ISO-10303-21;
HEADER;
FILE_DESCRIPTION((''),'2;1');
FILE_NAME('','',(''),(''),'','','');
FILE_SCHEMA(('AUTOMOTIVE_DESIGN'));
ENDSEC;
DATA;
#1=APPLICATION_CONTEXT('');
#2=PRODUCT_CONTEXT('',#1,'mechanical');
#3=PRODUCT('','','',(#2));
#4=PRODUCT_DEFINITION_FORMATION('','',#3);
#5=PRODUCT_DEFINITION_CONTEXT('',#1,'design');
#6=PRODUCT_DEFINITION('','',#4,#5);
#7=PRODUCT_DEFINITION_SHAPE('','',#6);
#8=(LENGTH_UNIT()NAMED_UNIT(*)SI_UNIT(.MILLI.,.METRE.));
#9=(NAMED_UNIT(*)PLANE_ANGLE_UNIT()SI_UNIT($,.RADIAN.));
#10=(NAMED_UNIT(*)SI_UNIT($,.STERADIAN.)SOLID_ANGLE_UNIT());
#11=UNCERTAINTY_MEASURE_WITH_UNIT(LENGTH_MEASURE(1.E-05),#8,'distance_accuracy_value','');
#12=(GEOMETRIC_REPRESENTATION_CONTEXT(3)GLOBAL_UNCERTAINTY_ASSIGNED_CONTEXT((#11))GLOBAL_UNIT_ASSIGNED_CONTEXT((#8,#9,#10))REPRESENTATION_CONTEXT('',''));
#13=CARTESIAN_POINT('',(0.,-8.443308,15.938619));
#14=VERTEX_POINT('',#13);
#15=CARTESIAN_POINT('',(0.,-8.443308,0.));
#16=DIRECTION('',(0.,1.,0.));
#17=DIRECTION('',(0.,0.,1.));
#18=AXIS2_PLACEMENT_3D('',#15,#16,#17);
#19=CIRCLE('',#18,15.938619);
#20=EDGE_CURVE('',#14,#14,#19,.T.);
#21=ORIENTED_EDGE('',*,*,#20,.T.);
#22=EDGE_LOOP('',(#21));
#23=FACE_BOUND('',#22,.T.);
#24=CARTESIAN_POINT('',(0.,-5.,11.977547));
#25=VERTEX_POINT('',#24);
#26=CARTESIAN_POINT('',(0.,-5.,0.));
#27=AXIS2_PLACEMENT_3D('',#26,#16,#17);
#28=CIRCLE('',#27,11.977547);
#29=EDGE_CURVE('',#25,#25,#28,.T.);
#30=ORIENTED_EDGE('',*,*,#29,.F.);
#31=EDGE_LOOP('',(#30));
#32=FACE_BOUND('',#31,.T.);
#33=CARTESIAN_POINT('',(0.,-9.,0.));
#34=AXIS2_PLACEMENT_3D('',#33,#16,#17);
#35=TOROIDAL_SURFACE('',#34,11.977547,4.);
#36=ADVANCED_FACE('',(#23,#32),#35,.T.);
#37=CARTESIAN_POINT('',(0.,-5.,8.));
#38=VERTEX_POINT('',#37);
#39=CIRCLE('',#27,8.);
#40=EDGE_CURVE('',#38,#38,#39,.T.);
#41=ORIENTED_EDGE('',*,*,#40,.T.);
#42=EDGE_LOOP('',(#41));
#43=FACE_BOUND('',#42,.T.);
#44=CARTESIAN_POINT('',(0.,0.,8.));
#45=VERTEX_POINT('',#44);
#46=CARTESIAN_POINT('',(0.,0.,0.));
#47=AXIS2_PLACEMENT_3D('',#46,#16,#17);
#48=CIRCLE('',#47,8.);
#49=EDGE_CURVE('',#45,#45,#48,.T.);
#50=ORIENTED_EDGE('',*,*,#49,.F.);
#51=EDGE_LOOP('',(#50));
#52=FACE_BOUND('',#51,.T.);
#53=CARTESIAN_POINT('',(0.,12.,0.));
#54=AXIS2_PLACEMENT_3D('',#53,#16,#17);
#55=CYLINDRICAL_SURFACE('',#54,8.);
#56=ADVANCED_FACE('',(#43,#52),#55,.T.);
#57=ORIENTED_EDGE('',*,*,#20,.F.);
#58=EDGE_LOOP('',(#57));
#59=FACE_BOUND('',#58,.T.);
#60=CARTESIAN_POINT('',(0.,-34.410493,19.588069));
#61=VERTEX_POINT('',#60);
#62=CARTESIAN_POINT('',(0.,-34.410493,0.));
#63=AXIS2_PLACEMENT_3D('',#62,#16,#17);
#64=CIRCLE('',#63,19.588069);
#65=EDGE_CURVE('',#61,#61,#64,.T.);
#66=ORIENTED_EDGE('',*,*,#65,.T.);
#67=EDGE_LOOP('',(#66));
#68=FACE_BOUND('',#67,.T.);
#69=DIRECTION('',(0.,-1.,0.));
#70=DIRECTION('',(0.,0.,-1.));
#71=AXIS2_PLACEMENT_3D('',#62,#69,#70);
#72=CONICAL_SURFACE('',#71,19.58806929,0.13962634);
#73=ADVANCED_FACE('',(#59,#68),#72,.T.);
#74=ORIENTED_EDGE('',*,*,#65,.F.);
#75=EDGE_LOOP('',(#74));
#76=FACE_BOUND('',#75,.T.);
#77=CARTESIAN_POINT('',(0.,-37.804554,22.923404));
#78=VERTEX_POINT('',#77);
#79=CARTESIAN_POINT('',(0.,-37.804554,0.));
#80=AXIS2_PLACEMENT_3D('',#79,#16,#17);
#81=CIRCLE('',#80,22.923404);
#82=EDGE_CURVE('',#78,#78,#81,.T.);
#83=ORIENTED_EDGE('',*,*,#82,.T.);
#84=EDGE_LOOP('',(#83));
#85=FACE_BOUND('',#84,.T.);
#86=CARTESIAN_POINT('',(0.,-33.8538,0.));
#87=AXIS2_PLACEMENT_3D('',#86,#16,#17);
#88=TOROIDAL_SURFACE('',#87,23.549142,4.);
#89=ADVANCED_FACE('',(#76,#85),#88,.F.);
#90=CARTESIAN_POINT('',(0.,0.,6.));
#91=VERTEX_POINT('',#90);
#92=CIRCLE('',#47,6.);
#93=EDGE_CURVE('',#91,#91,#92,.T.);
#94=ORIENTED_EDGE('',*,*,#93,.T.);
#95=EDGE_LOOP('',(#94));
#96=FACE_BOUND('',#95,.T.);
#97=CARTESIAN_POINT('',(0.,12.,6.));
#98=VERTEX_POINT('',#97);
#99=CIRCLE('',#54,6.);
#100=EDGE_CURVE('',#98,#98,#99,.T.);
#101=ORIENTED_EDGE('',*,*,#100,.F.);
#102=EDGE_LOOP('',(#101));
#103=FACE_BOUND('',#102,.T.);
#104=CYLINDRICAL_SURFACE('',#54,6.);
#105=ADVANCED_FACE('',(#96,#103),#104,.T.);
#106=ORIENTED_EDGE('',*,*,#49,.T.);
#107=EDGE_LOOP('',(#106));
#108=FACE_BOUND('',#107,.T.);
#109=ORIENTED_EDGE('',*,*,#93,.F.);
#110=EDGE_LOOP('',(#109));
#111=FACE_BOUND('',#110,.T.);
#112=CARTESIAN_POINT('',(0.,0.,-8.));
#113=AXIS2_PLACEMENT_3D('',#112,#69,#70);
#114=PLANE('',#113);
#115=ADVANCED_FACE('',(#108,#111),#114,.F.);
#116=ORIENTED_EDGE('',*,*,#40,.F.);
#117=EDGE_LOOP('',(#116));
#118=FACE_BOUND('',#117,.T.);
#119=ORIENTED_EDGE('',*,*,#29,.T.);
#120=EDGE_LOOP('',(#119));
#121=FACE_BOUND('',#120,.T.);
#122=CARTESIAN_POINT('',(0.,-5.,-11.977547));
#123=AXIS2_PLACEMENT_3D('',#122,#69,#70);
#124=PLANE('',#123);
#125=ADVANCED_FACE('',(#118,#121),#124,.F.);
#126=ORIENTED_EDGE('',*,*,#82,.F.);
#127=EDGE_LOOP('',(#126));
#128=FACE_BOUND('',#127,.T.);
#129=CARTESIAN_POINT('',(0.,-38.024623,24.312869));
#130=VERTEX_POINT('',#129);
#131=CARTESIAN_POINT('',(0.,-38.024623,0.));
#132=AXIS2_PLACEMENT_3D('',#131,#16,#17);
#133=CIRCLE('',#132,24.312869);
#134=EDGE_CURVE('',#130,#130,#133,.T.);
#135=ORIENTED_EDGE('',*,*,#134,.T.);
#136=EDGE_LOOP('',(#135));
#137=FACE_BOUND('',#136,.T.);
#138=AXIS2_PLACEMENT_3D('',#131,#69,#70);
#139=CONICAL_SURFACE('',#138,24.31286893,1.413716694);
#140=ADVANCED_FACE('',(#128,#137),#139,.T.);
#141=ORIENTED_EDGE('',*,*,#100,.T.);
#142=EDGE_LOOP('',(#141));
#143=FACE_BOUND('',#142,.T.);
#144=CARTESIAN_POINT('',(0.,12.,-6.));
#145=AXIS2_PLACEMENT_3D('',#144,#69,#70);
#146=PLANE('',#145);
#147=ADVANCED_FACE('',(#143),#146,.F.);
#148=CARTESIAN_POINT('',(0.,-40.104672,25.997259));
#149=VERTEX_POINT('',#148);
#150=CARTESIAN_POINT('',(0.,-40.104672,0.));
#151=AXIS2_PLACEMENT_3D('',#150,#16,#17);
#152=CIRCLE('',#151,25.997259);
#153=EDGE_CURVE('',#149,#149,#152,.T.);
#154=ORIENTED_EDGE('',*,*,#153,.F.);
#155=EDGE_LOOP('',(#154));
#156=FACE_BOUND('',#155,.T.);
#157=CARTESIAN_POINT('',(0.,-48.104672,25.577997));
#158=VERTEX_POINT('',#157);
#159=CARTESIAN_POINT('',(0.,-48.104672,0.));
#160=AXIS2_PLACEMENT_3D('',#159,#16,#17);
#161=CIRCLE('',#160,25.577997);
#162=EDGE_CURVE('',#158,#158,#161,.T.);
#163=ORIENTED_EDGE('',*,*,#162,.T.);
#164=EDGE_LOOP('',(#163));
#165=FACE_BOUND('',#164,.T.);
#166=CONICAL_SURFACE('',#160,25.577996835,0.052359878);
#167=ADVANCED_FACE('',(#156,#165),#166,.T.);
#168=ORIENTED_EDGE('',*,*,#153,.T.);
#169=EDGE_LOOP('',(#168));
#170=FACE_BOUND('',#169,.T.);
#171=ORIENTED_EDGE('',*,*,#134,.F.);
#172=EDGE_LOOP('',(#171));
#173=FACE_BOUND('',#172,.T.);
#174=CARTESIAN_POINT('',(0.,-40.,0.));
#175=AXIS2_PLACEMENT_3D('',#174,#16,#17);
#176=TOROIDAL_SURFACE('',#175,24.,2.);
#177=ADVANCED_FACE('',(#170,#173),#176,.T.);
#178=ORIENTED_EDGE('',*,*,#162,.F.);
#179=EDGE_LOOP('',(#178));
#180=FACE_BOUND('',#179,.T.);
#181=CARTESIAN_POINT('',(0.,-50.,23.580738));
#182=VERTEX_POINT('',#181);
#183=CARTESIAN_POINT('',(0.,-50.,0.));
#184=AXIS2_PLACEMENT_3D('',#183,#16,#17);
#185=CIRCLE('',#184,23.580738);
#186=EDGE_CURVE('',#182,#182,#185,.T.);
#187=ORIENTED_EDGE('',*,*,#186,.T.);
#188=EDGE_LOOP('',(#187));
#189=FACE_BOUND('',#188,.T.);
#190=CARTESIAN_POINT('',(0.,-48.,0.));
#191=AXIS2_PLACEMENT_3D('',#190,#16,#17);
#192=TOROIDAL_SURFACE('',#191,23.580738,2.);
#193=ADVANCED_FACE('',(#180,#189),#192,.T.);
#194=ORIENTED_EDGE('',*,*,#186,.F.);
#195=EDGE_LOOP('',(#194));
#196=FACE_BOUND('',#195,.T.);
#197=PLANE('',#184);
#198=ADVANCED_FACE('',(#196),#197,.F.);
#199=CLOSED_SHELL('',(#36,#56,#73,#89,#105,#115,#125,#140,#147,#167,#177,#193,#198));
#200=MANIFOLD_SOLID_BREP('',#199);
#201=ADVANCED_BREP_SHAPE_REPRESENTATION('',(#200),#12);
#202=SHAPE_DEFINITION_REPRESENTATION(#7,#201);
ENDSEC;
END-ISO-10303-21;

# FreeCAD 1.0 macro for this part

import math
import FreeCAD as App
import Part
import Sketcher
Q = App.Units.Quantity

doc = App.newDocument("Part")
body = doc.addObject("PartDesign::Body", "Body")

# Sketch on YZ plane
sketch1 = doc.addObject("Sketcher::SketchObject", "Sketch")
body.addObject(sketch1)
sketch1.AttachmentSupport = (doc.YZ_Plane, [""])
sketch1.MapMode = "FlatFace"
sketch1.addGeometry([
    Part.LineSegment(App.Vector(-5, -8, 0), App.Vector(0, -8, 0)),  # 0
    Part.LineSegment(App.Vector(0, -8, 0), App.Vector(0, -6, 0)),  # 1
    Part.LineSegment(App.Vector(0, -6, 0), App.Vector(12, -6, 0)),  # 2
    Part.LineSegment(App.Vector(12, -6, 0), App.Vector(12, 0, 0)),  # 3
    Part.LineSegment(App.Vector(12, 0, 0), App.Vector(-50, 0, 0)),  # 4
    Part.LineSegment(App.Vector(-50, 0, 0), App.Vector(-50, -23.6, 0)),  # 5
    Part.ArcOfCircle(Part.Circle(App.Vector(-48, -23.6, 0), App.Vector(0, 0, 1), 2), math.radians(180), math.radians(267)),  # 6
    Part.LineSegment(App.Vector(-48.1, -25.6, 0), App.Vector(-40.1, -26, 0)),  # 7
    Part.ArcOfCircle(Part.Circle(App.Vector(-40, -24, 0), App.Vector(0, 0, 1), 2), math.radians(-93), math.radians(-9)),  # 8
    Part.LineSegment(App.Vector(-38, -24.3, 0), App.Vector(-37.8, -22.9, 0)),  # 9
    Part.ArcOfCircle(Part.Circle(App.Vector(-33.9, -23.5, 0), App.Vector(0, 0, 1), 4), math.radians(98), math.radians(171)),  # 10
    Part.LineSegment(App.Vector(-34.4, -19.6, 0), App.Vector(-8.4, -15.9, 0)),  # 11
    Part.ArcOfCircle(Part.Circle(App.Vector(-9, -12, 0), App.Vector(0, 0, 1), 4), math.radians(-82), math.radians(0)),  # 12
    Part.LineSegment(App.Vector(-5, -12, 0), App.Vector(-5, -8, 0)),  # 13
], False)
sketch1.addConstraint([
    Sketcher.Constraint("Coincident", 0, 2, 1, 1),
    Sketcher.Constraint("Coincident", 1, 2, 2, 1),
    Sketcher.Constraint("Coincident", 2, 2, 3, 1),
    Sketcher.Constraint("Coincident", 3, 2, 4, 1),
    Sketcher.Constraint("Coincident", 4, 2, 5, 1),
    Sketcher.Constraint("Tangent", 5, 2, 6, 1),
    Sketcher.Constraint("Tangent", 6, 2, 7, 1),
    Sketcher.Constraint("Tangent", 7, 2, 8, 1),
    Sketcher.Constraint("Tangent", 8, 2, 9, 1),
    Sketcher.Constraint("Tangent", 9, 2, 10, 2),
    Sketcher.Constraint("Tangent", 10, 1, 11, 1),
    Sketcher.Constraint("Tangent", 11, 2, 12, 1),
    Sketcher.Constraint("Tangent", 12, 2, 13, 1),
    Sketcher.Constraint("Coincident", 13, 2, 0, 1),
    Sketcher.Constraint("Horizontal", 0),
    Sketcher.Constraint("Vertical", 1),
    Sketcher.Constraint("Horizontal", 2),
    Sketcher.Constraint("Vertical", 3),
    Sketcher.Constraint("Horizontal", 4),
    Sketcher.Constraint("Vertical", 5),
    Sketcher.Constraint("Vertical", 13),
    Sketcher.Constraint("Equal", 6, 8),
    Sketcher.Constraint("Equal", 10, 12),
    Sketcher.Constraint("PointOnObject", 0, 2, -2),
    Sketcher.Constraint("PointOnObject", 3, 2, -1),
    Sketcher.Constraint("Radius", 6, Q("2 mm")),
    Sketcher.Constraint("Radius", 10, Q("4 mm")),
    Sketcher.Constraint("DistanceX", 0, 1, 0, 2, Q("5 mm")),
    Sketcher.Constraint("DistanceX", 2, 1, 2, 2, Q("12 mm")),
    Sketcher.Constraint("DistanceX", 4, 2, 4, 1, Q("62 mm")),
    Sketcher.Constraint("DistanceY", 1, 1, 1, 2, Q("2 mm")),
    Sketcher.Constraint("DistanceY", 3, 1, 3, 2, Q("6 mm")),
    Sketcher.Constraint("Angle", 7, Q("-3 deg")),
    Sketcher.Constraint("Angle", 9, Q("81 deg")),
    Sketcher.Constraint("Angle", 11, Q("8 deg")),
    Sketcher.Constraint("DistanceX", 8, 3, -1, 1, Q("40 mm")),
    Sketcher.Constraint("DistanceY", 8, 3, -1, 1, Q("24 mm")),
    Sketcher.Constraint("DistanceX", 10, 3, -1, 1, Q("33.8538 mm")),
])
revolution = doc.addObject("PartDesign::Revolution", "Revolution")
body.addObject(revolution)
revolution.Profile = sketch1
revolution.ReferenceAxis = (sketch1, ["H_Axis"])
revolution.Angle = 360

doc.recompute()
